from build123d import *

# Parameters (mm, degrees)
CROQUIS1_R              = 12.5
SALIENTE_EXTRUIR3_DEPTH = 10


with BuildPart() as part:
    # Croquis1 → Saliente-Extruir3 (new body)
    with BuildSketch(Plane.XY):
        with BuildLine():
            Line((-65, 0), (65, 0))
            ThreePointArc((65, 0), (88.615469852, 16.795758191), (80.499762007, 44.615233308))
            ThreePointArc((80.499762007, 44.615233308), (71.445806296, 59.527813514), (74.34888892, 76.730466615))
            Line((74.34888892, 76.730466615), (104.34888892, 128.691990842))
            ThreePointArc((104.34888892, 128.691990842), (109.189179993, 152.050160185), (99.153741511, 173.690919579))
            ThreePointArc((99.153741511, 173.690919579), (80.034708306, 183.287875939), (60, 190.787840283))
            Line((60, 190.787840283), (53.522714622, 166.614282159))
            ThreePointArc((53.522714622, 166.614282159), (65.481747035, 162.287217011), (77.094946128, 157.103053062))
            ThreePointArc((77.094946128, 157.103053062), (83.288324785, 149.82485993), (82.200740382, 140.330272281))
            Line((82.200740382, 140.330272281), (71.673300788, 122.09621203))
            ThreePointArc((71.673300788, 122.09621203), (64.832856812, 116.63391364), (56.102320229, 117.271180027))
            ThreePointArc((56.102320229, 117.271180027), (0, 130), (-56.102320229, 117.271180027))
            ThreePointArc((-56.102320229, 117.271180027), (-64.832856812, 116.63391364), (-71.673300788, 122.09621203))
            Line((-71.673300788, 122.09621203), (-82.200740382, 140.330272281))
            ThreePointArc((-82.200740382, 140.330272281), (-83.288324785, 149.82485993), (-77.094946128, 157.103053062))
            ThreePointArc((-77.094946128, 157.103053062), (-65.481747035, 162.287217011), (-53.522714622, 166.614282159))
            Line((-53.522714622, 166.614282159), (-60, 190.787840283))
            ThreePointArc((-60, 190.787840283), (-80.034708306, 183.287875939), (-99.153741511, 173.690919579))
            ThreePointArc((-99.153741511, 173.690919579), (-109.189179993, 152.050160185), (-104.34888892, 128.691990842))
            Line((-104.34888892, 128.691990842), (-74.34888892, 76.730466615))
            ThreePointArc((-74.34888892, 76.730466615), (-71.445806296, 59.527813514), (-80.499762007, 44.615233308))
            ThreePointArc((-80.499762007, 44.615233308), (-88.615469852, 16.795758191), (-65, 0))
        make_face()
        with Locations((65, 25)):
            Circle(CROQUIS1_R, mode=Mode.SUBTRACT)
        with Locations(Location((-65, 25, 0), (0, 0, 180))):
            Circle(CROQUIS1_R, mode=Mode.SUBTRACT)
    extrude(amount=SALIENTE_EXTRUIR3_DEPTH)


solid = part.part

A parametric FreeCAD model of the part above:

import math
import FreeCAD as App
import Part
import Sketcher

V = App.Vector
Q = App.Units.Quantity

doc = App.newDocument("Part")
body = doc.addObject("PartDesign::Body", "Body")

sketch1 = body.newObject("Sketcher::SketchObject", "Sketch")
sketch1.AttachmentSupport = (doc.getObject("XY_Plane"), [""])
sketch1.MapMode = "FlatFace"
sketch1.addGeometry(Part.LineSegment(V(-65, 0, 0), V(65, 0, 0)), False)
sketch1.addGeometry(Part.ArcOfCircle(Part.Circle(V(65, 25, 0), V(0, 0, 1), 25), math.radians(-90), math.radians(52)), False)
sketch1.addGeometry(Part.ArcOfCircle(Part.Circle(V(96, 64, 0), V(0, 0, 1), 25), math.radians(150), math.radians(232)), False)
sketch1.addGeometry(Part.LineSegment(V(74, 77, 0), V(104, 129, 0)), False)
sketch1.addGeometry(Part.ArcOfCircle(Part.Circle(V(71, 148, 0), V(0, 0, 1), 38), math.radians(-30), math.radians(43)), False)
sketch1.addGeometry(Part.ArcOfCircle(Part.Circle(V(0, 0, 0), V(0, 0, 1), 200), math.radians(60.28), math.radians(72.54)), False)
sketch1.addGeometry(Part.LineSegment(V(60, 191, 0), V(54, 167, 0)), False)
sketch1.addGeometry(Part.ArcOfCircle(Part.Circle(V(0, 0, 0), V(0, 0, 1), 175), math.radians(63.86), math.radians(72.19)), False)
sketch1.addGeometry(Part.ArcOfCircle(Part.Circle(V(72, 146, 0), V(0, 0, 1), 12), math.radians(-30), math.radians(64)), False)
sketch1.addGeometry(Part.LineSegment(V(82, 140, 0), V(72, 122, 0)), False)
sketch1.addGeometry(Part.ArcOfCircle(Part.Circle(V(61, 128, 0), V(0, 0, 1), 12), math.radians(-116), math.radians(-30)), False)
sketch1.addGeometry(Part.ArcOfCircle(Part.Circle(V(0, 0, 0), V(0, 0, 1), 130), math.radians(64), math.radians(116)), False)
sketch1.addGeometry(Part.ArcOfCircle(Part.Circle(V(-61, 128, 0), V(0, 0, 1), 12), math.radians(-150), math.radians(-64)), False)
sketch1.addGeometry(Part.LineSegment(V(-72, 122, 0), V(-82, 140, 0)), False)
sketch1.addGeometry(Part.ArcOfCircle(Part.Circle(V(-72, 146, 0), V(0, 0, 1), 12), math.radians(116), math.radians(210)), False)
sketch1.addGeometry(Part.ArcOfCircle(Part.Circle(V(0, 0, 0), V(0, 0, 1), 175), math.radians(107.81), math.radians(116.14)), False)
sketch1.addGeometry(Part.LineSegment(V(-54, 167, 0), V(-60, 191, 0)), False)
sketch1.addGeometry(Part.ArcOfCircle(Part.Circle(V(0, 0, 0), V(0, 0, 1), 200), math.radians(107.46), math.radians(119.72)), False)
sketch1.addGeometry(Part.ArcOfCircle(Part.Circle(V(-71, 148, 0), V(0, 0, 1), 38), math.radians(137), math.radians(210)), False)
sketch1.addGeometry(Part.LineSegment(V(-104, 129, 0), V(-74, 77, 0)), False)
sketch1.addGeometry(Part.ArcOfCircle(Part.Circle(V(-96, 64, 0), V(0, 0, 1), 25), math.radians(-52), math.radians(30)), False)
sketch1.addGeometry(Part.ArcOfCircle(Part.Circle(V(-65, 25, 0), V(0, 0, 1), 25), math.radians(128), math.radians(270)), False)
sketch1.addGeometry(Part.Circle(V(-65, 25, 0), V(0, 0, 1), 12), False)
sketch1.addGeometry(Part.Circle(V(65, 25, 0), V(0, 0, 1), 12), False)
sketch1.addConstraint(Sketcher.Constraint("Tangent", 0, 2, 1, 1))
sketch1.addConstraint(Sketcher.Constraint("Tangent", 1, 2, 2, 2))
sketch1.addConstraint(Sketcher.Constraint("Tangent", 2, 1, 3, 1))
sketch1.addConstraint(Sketcher.Constraint("Tangent", 3, 2, 4, 1))
sketch1.addConstraint(Sketcher.Constraint("Coincident", 4, 2, 5, 1))
sketch1.addConstraint(Sketcher.Constraint("Coincident", 5, 2, 6, 1))
sketch1.addConstraint(Sketcher.Constraint("Coincident", 6, 2, 7, 2))
sketch1.addConstraint(Sketcher.Constraint("Tangent", 7, 1, 8, 2))
sketch1.addConstraint(Sketcher.Constraint("Tangent", 8, 1, 9, 1))
sketch1.addConstraint(Sketcher.Constraint("Tangent", 9, 2, 10, 2))
sketch1.addConstraint(Sketcher.Constraint("Tangent", 10, 1, 11, 1))
sketch1.addConstraint(Sketcher.Constraint("Tangent", 11, 2, 12, 2))
sketch1.addConstraint(Sketcher.Constraint("Tangent", 12, 1, 13, 1))
sketch1.addConstraint(Sketcher.Constraint("Tangent", 13, 2, 14, 2))
sketch1.addConstraint(Sketcher.Constraint("Tangent", 14, 1, 15, 2))
sketch1.addConstraint(Sketcher.Constraint("Coincident", 15, 1, 16, 1))
sketch1.addConstraint(Sketcher.Constraint("Coincident", 16, 2, 17, 1))
sketch1.addConstraint(Sketcher.Constraint("Coincident", 17, 2, 18, 1))
sketch1.addConstraint(Sketcher.Constraint("Tangent", 18, 2, 19, 1))
sketch1.addConstraint(Sketcher.Constraint("Tangent", 19, 2, 20, 2))
sketch1.addConstraint(Sketcher.Constraint("Tangent", 20, 1, 21, 1))
sketch1.addConstraint(Sketcher.Constraint("Tangent", 21, 2, 0, 1))
sketch1.addConstraint(Sketcher.Constraint("Horizontal", 0))
sketch1.addConstraint(Sketcher.Constraint("Coincident", 5, 3, -1, 1))
sketch1.addConstraint(Sketcher.Constraint("Coincident", 7, 3, -1, 1))
sketch1.addConstraint(Sketcher.Constraint("Coincident", 11, 3, -1, 1))
sketch1.addConstraint(Sketcher.Constraint("Coincident", 15, 3, -1, 1))
sketch1.addConstraint(Sketcher.Constraint("Coincident", 17, 3, -1, 1))
sketch1.addConstraint(Sketcher.Constraint("Coincident", 22, 3, 21, 3))
sketch1.addConstraint(Sketcher.Constraint("Coincident", 23, 3, 1, 3))
sketch1.addConstraint(Sketcher.Constraint("Equal", 1, 2))
sketch1.addConstraint(Sketcher.Constraint("Equal", 8, 10))
sketch1.addConstraint(Sketcher.Constraint("Equal", 10, 12))
sketch1.addConstraint(Sketcher.Constraint("Equal", 12, 14))
sketch1.addConstraint(Sketcher.Constraint("Equal", 7, 15))
sketch1.addConstraint(Sketcher.Constraint("Equal", 5, 17))
sketch1.addConstraint(Sketcher.Constraint("Equal", 4, 18))
sketch1.addConstraint(Sketcher.Constraint("Equal", 2, 20))
sketch1.addConstraint(Sketcher.Constraint("Equal", 20, 21))
sketch1.addConstraint(Sketcher.Constraint("Equal", 22, 23))
sketch1.addConstraint(Sketcher.Constraint("Symmetric", 0, 2, 21, 2, -1, 1))
sketch1.addConstraint(Sketcher.Constraint("Symmetric", 4, 3, 18, 3, -2))
sketch1.addConstraint(Sketcher.Constraint("Symmetric", 9, 2, 12, 1, -2))
sketch1.addConstraint(Sketcher.Constraint("Parallel", 3, 9))
sketch1.addConstraint(Sketcher.Constraint("Parallel", 13, 19))
sketch1.addConstraint(Sketcher.Constraint("Horizontal", 6, 2, 15, 1))
sketch1.addConstraint(Sketcher.Constraint("Horizontal", 5, 2, 16, 2))
sketch1.addConstraint(Sketcher.Constraint("Diameter", 22, 25.0))
sketch1.addConstraint(Sketcher.Constraint("Radius", 1, 25.0))
sketch1.addConstraint(Sketcher.Constraint("Radius", 4, 38.0))
sketch1.addConstraint(Sketcher.Constraint("Radius", 5, 200.0))
sketch1.addConstraint(Sketcher.Constraint("Radius", 7, 175.0))
sketch1.addConstraint(Sketcher.Constraint("Radius", 8, 12.0))
sketch1.addConstraint(Sketcher.Constraint("Radius", 11, 130.0))
sketch1.addConstraint(Sketcher.Constraint("DistanceX", 0, 1, 0, 2, 130.0))
sketch1.addConstraint(Sketcher.Constraint("Angle", 3, Q("60 deg")))
sketch1.addConstraint(Sketcher.Constraint("Angle", 6, Q("-105 deg")))
sketch1.addConstraint(Sketcher.Constraint("Distance", 3, 60.0))
sketch1.addConstraint(Sketcher.Constraint("DistanceX", -1, 1, 5, 2, 60.0))
sketch1.addConstraint(Sketcher.Constraint("DistanceX", 17, 2, 13, 2, 16.953001))
sketch1.addConstraint(Sketcher.Constraint("DistanceX", -1, 1, 9, 2, 71.673301))
pad1 = body.newObject("PartDesign::Pad", "Pad")
pad1.Profile = sketch1
pad1.Length = 10

doc.recompute()
